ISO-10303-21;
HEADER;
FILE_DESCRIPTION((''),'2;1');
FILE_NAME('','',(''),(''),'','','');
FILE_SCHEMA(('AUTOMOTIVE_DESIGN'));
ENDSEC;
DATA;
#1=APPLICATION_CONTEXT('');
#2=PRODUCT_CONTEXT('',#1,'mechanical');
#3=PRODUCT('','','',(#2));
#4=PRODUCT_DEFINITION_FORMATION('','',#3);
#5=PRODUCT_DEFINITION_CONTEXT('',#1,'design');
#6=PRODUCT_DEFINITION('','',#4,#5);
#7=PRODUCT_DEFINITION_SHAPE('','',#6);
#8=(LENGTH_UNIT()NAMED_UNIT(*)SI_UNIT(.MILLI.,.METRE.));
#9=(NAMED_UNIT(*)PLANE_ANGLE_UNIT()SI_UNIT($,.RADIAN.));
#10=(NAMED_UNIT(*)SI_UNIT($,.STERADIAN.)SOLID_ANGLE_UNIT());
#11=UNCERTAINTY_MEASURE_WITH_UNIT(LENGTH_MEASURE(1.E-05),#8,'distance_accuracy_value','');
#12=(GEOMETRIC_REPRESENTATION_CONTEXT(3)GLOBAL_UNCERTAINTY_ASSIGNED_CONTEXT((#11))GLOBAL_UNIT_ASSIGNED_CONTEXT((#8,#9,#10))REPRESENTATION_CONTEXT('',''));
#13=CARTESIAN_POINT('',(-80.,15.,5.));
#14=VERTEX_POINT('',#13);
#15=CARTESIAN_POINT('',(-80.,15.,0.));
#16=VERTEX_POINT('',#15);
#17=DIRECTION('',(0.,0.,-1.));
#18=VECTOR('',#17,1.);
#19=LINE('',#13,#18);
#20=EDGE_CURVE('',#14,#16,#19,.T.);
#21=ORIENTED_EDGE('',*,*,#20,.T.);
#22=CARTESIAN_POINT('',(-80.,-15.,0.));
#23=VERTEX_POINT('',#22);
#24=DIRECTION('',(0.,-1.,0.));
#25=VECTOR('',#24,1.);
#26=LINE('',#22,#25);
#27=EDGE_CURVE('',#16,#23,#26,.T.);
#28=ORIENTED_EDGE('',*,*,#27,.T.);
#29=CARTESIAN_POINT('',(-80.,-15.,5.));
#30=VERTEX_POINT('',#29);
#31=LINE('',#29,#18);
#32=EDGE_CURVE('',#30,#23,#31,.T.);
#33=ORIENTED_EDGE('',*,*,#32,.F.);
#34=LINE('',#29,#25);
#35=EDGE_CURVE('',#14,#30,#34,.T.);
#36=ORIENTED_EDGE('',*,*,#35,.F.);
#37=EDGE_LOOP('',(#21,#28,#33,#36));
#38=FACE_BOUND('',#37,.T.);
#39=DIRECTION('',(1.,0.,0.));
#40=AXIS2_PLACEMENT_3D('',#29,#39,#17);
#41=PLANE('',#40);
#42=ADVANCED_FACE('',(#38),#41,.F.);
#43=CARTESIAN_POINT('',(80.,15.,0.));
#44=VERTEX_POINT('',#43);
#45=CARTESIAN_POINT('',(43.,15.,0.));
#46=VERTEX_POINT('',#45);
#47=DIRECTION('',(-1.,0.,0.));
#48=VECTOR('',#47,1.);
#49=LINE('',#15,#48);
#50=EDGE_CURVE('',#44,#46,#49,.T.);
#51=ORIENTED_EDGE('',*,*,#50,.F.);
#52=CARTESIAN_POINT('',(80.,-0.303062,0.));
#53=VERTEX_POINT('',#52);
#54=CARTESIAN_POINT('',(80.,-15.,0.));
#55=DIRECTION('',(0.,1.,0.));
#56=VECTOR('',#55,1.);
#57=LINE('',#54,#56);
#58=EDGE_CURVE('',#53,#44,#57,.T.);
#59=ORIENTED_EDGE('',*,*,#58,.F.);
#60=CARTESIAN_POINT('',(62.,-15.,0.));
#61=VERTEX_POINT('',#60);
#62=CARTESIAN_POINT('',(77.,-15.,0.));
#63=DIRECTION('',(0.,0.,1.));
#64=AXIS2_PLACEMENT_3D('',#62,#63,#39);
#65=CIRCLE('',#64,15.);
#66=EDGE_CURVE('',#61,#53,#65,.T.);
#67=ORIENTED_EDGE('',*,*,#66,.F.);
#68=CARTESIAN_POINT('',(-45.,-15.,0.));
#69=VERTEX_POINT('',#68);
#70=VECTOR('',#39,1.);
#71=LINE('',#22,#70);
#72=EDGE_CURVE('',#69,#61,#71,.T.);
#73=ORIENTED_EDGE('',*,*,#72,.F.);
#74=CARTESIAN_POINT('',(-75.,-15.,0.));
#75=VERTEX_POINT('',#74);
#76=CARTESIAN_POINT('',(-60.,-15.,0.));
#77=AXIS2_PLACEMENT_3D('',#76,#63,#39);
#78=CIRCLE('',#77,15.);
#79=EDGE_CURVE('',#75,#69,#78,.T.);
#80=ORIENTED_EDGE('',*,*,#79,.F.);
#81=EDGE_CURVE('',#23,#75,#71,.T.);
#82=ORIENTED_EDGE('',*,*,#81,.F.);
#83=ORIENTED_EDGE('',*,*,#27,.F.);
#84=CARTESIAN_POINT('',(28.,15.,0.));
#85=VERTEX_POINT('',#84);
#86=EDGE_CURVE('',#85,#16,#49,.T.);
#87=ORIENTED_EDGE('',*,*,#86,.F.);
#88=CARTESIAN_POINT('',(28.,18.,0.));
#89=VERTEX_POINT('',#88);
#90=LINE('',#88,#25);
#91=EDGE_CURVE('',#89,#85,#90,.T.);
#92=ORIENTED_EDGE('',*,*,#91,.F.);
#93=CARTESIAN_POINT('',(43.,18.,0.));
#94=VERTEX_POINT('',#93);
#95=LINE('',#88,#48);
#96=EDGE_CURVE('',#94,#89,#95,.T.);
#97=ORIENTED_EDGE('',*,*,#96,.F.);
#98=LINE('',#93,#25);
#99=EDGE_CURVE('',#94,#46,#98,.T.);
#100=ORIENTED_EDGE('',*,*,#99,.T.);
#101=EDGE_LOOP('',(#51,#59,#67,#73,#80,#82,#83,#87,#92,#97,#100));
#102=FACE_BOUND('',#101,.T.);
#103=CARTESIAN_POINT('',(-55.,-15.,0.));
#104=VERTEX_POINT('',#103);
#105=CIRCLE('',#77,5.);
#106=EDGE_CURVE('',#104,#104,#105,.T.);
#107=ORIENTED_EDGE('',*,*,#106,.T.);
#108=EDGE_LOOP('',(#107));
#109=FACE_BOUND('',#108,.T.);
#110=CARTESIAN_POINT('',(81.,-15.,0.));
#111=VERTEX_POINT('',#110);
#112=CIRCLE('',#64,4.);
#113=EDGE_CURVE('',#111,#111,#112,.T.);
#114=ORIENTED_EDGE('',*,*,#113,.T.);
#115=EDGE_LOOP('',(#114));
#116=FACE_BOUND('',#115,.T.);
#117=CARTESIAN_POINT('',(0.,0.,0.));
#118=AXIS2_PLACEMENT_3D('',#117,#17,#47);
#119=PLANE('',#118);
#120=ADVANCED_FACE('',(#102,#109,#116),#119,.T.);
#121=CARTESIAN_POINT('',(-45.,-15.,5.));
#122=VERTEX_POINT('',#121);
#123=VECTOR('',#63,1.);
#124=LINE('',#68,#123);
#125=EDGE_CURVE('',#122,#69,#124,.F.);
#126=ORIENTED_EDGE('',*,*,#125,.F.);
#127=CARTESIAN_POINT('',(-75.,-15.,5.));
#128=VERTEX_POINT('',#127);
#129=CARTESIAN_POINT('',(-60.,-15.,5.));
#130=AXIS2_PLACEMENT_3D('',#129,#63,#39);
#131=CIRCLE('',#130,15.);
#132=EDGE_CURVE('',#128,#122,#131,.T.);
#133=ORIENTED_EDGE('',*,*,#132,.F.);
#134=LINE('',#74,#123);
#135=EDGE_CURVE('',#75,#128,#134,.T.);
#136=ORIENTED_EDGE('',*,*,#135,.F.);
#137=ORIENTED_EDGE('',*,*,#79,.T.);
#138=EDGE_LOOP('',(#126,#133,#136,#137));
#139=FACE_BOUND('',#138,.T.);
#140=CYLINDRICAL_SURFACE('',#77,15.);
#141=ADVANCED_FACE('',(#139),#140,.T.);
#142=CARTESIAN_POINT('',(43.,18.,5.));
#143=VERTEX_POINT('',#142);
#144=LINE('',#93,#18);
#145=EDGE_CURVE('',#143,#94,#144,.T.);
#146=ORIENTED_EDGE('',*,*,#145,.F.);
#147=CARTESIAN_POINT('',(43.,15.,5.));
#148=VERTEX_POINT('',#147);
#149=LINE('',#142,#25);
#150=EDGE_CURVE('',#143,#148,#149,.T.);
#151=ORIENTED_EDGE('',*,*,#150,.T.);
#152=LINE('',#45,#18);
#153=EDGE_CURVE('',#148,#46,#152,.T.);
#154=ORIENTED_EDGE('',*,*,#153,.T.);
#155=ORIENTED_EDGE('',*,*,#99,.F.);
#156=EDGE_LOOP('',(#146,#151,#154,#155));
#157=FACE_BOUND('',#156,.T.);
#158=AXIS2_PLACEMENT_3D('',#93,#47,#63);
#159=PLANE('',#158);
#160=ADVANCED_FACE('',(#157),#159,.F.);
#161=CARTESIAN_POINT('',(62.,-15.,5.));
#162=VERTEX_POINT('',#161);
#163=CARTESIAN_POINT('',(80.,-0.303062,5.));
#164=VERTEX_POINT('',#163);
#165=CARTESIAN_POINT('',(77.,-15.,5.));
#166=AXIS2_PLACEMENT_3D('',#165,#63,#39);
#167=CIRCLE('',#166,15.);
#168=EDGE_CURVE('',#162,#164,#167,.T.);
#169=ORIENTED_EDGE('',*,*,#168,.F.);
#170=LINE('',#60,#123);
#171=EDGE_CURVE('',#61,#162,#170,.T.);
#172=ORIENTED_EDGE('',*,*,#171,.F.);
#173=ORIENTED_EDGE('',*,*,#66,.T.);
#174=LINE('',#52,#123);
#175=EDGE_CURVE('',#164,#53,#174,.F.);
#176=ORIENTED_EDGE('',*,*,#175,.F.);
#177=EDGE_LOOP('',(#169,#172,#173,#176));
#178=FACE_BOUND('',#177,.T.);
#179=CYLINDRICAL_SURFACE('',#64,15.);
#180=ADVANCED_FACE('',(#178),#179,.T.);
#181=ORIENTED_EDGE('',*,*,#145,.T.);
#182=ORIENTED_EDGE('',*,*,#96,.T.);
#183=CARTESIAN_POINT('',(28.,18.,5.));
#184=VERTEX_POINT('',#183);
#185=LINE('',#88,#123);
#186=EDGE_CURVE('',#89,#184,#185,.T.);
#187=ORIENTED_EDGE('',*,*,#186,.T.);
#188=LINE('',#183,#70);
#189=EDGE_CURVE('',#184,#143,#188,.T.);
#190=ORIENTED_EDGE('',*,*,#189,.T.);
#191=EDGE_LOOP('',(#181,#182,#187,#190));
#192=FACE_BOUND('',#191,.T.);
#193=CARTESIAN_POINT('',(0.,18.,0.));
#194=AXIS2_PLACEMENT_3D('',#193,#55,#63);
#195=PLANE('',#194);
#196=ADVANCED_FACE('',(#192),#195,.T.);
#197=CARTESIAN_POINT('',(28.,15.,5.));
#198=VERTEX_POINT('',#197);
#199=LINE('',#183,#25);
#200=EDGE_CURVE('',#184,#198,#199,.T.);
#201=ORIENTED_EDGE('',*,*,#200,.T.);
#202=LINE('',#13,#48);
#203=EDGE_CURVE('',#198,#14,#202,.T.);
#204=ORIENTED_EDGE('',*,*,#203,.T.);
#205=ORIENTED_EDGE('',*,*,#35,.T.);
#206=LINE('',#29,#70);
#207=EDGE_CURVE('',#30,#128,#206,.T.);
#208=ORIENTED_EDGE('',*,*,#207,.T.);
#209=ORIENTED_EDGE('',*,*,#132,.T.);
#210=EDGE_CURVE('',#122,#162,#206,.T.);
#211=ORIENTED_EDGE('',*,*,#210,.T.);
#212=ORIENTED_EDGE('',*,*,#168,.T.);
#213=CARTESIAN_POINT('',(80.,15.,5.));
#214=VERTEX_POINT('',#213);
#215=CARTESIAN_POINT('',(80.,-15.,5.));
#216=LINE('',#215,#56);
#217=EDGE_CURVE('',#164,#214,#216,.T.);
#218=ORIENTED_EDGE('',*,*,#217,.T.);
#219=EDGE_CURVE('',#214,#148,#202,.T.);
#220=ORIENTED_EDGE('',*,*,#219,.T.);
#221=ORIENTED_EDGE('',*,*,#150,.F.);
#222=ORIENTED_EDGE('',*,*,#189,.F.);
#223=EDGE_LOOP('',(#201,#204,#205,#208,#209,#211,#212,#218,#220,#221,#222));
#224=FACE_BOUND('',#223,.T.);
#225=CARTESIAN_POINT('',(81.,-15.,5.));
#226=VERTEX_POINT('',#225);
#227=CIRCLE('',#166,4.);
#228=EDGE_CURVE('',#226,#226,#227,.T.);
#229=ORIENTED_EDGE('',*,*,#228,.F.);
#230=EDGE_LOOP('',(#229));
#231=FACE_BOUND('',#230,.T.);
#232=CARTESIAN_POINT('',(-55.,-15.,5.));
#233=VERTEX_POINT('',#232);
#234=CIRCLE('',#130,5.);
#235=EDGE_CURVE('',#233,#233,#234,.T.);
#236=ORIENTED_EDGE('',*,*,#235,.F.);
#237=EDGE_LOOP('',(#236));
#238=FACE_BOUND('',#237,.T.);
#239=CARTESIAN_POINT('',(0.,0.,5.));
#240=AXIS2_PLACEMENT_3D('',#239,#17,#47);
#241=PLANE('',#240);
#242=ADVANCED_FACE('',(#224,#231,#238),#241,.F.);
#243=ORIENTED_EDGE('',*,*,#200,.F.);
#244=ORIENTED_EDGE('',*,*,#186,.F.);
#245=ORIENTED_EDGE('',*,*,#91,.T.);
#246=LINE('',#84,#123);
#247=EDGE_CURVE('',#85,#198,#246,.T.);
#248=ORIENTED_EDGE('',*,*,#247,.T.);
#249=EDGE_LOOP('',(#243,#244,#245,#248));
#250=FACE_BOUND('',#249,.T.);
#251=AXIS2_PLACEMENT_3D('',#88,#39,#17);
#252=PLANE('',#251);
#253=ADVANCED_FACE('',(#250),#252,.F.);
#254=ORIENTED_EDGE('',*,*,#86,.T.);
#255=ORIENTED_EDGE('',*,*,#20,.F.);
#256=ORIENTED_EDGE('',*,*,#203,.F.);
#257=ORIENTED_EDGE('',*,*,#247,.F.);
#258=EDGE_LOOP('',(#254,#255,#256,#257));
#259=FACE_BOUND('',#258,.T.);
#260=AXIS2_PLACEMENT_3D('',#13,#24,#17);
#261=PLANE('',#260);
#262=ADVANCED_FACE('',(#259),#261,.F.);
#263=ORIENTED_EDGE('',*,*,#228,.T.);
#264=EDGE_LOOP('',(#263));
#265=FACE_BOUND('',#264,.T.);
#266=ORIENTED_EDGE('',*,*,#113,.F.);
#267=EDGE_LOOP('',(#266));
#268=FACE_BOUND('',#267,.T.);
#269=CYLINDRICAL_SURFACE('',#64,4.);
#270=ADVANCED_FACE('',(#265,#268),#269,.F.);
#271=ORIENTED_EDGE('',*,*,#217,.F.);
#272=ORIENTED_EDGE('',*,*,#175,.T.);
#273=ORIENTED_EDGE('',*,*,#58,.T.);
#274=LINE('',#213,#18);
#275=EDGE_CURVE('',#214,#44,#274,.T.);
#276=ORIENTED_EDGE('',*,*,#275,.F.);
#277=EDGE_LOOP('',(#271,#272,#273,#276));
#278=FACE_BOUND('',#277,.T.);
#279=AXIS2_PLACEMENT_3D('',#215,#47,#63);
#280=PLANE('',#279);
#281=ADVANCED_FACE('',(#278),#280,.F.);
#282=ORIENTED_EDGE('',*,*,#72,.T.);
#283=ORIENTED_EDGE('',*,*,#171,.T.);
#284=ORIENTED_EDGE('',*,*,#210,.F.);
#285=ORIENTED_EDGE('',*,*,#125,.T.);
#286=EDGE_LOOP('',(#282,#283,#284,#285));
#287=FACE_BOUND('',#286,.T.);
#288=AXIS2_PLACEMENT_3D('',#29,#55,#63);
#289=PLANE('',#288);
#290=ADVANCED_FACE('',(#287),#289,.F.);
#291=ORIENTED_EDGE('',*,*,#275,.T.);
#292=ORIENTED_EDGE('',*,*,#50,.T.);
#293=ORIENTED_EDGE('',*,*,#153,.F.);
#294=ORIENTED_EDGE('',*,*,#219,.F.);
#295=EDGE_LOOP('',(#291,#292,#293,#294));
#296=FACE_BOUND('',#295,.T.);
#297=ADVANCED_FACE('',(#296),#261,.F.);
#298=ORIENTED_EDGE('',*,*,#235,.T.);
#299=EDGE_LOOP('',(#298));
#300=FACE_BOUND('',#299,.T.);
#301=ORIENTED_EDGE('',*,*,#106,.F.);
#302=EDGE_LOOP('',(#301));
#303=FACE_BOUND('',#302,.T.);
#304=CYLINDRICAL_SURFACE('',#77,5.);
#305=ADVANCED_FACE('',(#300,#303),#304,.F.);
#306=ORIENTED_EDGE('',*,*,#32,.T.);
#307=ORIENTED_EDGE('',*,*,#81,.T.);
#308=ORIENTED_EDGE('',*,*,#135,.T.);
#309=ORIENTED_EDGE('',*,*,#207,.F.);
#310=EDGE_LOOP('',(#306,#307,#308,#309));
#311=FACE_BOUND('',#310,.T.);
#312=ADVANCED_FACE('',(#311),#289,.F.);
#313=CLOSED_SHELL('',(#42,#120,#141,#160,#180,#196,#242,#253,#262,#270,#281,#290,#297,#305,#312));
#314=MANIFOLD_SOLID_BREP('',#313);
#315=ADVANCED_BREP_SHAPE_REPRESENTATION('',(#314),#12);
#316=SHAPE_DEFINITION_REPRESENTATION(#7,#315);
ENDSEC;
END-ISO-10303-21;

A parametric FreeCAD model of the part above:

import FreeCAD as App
import Part
import Sketcher
from FreeCAD import Vector

doc = App.newDocument("Part")
params = doc.addObject("Spreadsheet::Sheet", "Params")
for row, (alias, value) in enumerate([
    ("sketch1_width", "160 mm"),
    ("sketch1_height", "30 mm"),
    ("pad1_length", "5 mm"),
    ("sketch2_diameter", "30 mm"),
    ("pad2_length", "5 mm"),
    ("sketch3_diameter", "10 mm"),
    ("sketch3_diameter2", "8 mm"),
    ("sketch4_width", "15 mm"),
    ("sketch4_height", "5 mm"),
    ("pad3_length", "3 mm"),
], start=1):
    params.set(f"A{row}", alias)
    params.set(f"B{row}", "=" + value)
    params.setAlias(f"B{row}", alias)

body = doc.addObject("PartDesign::Body", "Body")

sketch1 = body.newObject("Sketcher::SketchObject", "Sketch")
sketch1.AttachmentSupport = (doc.getObject("XY_Plane"), [""])
sketch1.MapMode = "FlatFace"
sketch1.addGeometry(Part.LineSegment(Vector(-80, 15, 0), Vector(-80, -15, 0)), False)
sketch1.addGeometry(Part.LineSegment(Vector(-80, -15, 0), Vector(80, -15, 0)), False)
sketch1.addGeometry(Part.LineSegment(Vector(80, -15, 0), Vector(80, 15, 0)), False)
sketch1.addGeometry(Part.LineSegment(Vector(80, 15, 0), Vector(-80, 15, 0)), False)
sketch1.addConstraint(Sketcher.Constraint("Coincident", 0, 2, 1, 1))
sketch1.addConstraint(Sketcher.Constraint("Coincident", 1, 2, 2, 1))
sketch1.addConstraint(Sketcher.Constraint("Coincident", 2, 2, 3, 1))
sketch1.addConstraint(Sketcher.Constraint("Coincident", 3, 2, 0, 1))
sketch1.addConstraint(Sketcher.Constraint("Vertical", 0))
sketch1.addConstraint(Sketcher.Constraint("Horizontal", 1))
sketch1.addConstraint(Sketcher.Constraint("Vertical", 2))
sketch1.addConstraint(Sketcher.Constraint("Horizontal", 3))
sketch1.addConstraint(Sketcher.Constraint("Symmetric", 0, 2, 2, 2, -1, 1))
sketch1.addConstraint(Sketcher.Constraint("DistanceX", 1, 1, 1, 2, 160.0))
sketch1.addConstraint(Sketcher.Constraint("DistanceY", 0, 2, 0, 1, 30.0))
sketch1.setExpression("Constraints[9]", "Params.sketch1_width")
sketch1.setExpression("Constraints[10]", "Params.sketch1_height")
pad1 = body.newObject("PartDesign::Pad", "Pad")
pad1.Profile = sketch1
pad1.setExpression("Length", "Params.pad1_length")

sketch2 = body.newObject("Sketcher::SketchObject", "Sketch001")
sketch2.AttachmentSupport = (doc.getObject("XY_Plane"), [""])
sketch2.MapMode = "FlatFace"
sketch2.AttachmentOffset = App.Placement(Vector(0, 0, 5), App.Rotation())
sketch2.addGeometry(Part.Circle(Vector(-60, -15, 0), Vector(0, 0, 1), 15), False)
sketch2.addGeometry(Part.Circle(Vector(77, -15, 0), Vector(0, 0, 1), 15), False)
sketch2.addConstraint(Sketcher.Constraint("Equal", 0, 1))
sketch2.addConstraint(Sketcher.Constraint("Horizontal", 0, 3, 1, 3))
sketch2.addConstraint(Sketcher.Constraint("Diameter", 0, 30.0))
sketch2.addConstraint(Sketcher.Constraint("DistanceX", 0, 3, -1, 1, 60.0))
sketch2.addConstraint(Sketcher.Constraint("DistanceY", 0, 3, -1, 1, 15.0))
sketch2.addConstraint(Sketcher.Constraint("DistanceX", -1, 1, 1, 3, 77.0))
sketch2.setExpression("Constraints[2]", "Params.sketch2_diameter")
pad2 = body.newObject("PartDesign::Pad", "Pad001")
pad2.Profile = sketch2
pad2.setExpression("Length", "Params.pad2_length")
pad2.Reversed = True

sketch3 = body.newObject("Sketcher::SketchObject", "Sketch002")
sketch3.AttachmentSupport = (doc.getObject("XY_Plane"), [""])
sketch3.MapMode = "FlatFace"
sketch3.AttachmentOffset = App.Placement(Vector(0, 0, 5), App.Rotation())
sketch3.addGeometry(Part.Circle(Vector(-60, -15, 0), Vector(0, 0, 1), 5), False)
sketch3.addGeometry(Part.Circle(Vector(77, -15, 0), Vector(0, 0, 1), 4), False)
sketch3.addConstraint(Sketcher.Constraint("Horizontal", 0, 3, 1, 3))
sketch3.addConstraint(Sketcher.Constraint("Diameter", 0, 10.0))
sketch3.addConstraint(Sketcher.Constraint("Diameter", 1, 8.0))
sketch3.addConstraint(Sketcher.Constraint("DistanceX", 0, 3, -1, 1, 60.0))
sketch3.addConstraint(Sketcher.Constraint("DistanceY", 0, 3, -1, 1, 15.0))
sketch3.addConstraint(Sketcher.Constraint("DistanceX", -1, 1, 1, 3, 77.0))
sketch3.setExpression("Constraints[1]", "Params.sketch3_diameter")
sketch3.setExpression("Constraints[2]", "Params.sketch3_diameter2")
pocket1 = body.newObject("PartDesign::Pocket", "Pocket")
pocket1.Profile = sketch3
pocket1.Type = "ThroughAll"

sketch4 = body.newObject("Sketcher::SketchObject", "Sketch003")
sketch4.AttachmentSupport = (doc.getObject("XZ_Plane"), [""])
sketch4.MapMode = "FlatFace"
sketch4.AttachmentOffset = App.Placement(Vector(0, 0, -15), App.Rotation())
sketch4.addGeometry(Part.LineSegment(Vector(28, 0, 0), Vector(28, 5, 0)), False)
sketch4.addGeometry(Part.LineSegment(Vector(28, 5, 0), Vector(43, 5, 0)), False)
sketch4.addGeometry(Part.LineSegment(Vector(43, 5, 0), Vector(43, 0, 0)), False)
sketch4.addGeometry(Part.LineSegment(Vector(43, 0, 0), Vector(28, 0, 0)), False)
sketch4.addConstraint(Sketcher.Constraint("Coincident", 0, 2, 1, 1))
sketch4.addConstraint(Sketcher.Constraint("Coincident", 1, 2, 2, 1))
sketch4.addConstraint(Sketcher.Constraint("Coincident", 2, 2, 3, 1))
sketch4.addConstraint(Sketcher.Constraint("Coincident", 3, 2, 0, 1))
sketch4.addConstraint(Sketcher.Constraint("Vertical", 0))
sketch4.addConstraint(Sketcher.Constraint("Horizontal", 1))
sketch4.addConstraint(Sketcher.Constraint("Vertical", 2))
sketch4.addConstraint(Sketcher.Constraint("Horizontal", 3))
sketch4.addConstraint(Sketcher.Constraint("PointOnObject", 2, 2, -1))
sketch4.addConstraint(Sketcher.Constraint("DistanceX", 1, 1, 1, 2, 15.0))
sketch4.addConstraint(Sketcher.Constraint("DistanceY", 0, 1, 0, 2, 5.0))
sketch4.addConstraint(Sketcher.Constraint("DistanceX", -1, 1, 0, 2, 28.0))
sketch4.setExpression("Constraints[9]", "Params.sketch4_width")
sketch4.setExpression("Constraints[10]", "Params.sketch4_height")
pad3 = body.newObject("PartDesign::Pad", "Pad002")
pad3.Profile = sketch4
pad3.setExpression("Length", "Params.pad3_length")
pad3.Reversed = True

doc.recompute()
